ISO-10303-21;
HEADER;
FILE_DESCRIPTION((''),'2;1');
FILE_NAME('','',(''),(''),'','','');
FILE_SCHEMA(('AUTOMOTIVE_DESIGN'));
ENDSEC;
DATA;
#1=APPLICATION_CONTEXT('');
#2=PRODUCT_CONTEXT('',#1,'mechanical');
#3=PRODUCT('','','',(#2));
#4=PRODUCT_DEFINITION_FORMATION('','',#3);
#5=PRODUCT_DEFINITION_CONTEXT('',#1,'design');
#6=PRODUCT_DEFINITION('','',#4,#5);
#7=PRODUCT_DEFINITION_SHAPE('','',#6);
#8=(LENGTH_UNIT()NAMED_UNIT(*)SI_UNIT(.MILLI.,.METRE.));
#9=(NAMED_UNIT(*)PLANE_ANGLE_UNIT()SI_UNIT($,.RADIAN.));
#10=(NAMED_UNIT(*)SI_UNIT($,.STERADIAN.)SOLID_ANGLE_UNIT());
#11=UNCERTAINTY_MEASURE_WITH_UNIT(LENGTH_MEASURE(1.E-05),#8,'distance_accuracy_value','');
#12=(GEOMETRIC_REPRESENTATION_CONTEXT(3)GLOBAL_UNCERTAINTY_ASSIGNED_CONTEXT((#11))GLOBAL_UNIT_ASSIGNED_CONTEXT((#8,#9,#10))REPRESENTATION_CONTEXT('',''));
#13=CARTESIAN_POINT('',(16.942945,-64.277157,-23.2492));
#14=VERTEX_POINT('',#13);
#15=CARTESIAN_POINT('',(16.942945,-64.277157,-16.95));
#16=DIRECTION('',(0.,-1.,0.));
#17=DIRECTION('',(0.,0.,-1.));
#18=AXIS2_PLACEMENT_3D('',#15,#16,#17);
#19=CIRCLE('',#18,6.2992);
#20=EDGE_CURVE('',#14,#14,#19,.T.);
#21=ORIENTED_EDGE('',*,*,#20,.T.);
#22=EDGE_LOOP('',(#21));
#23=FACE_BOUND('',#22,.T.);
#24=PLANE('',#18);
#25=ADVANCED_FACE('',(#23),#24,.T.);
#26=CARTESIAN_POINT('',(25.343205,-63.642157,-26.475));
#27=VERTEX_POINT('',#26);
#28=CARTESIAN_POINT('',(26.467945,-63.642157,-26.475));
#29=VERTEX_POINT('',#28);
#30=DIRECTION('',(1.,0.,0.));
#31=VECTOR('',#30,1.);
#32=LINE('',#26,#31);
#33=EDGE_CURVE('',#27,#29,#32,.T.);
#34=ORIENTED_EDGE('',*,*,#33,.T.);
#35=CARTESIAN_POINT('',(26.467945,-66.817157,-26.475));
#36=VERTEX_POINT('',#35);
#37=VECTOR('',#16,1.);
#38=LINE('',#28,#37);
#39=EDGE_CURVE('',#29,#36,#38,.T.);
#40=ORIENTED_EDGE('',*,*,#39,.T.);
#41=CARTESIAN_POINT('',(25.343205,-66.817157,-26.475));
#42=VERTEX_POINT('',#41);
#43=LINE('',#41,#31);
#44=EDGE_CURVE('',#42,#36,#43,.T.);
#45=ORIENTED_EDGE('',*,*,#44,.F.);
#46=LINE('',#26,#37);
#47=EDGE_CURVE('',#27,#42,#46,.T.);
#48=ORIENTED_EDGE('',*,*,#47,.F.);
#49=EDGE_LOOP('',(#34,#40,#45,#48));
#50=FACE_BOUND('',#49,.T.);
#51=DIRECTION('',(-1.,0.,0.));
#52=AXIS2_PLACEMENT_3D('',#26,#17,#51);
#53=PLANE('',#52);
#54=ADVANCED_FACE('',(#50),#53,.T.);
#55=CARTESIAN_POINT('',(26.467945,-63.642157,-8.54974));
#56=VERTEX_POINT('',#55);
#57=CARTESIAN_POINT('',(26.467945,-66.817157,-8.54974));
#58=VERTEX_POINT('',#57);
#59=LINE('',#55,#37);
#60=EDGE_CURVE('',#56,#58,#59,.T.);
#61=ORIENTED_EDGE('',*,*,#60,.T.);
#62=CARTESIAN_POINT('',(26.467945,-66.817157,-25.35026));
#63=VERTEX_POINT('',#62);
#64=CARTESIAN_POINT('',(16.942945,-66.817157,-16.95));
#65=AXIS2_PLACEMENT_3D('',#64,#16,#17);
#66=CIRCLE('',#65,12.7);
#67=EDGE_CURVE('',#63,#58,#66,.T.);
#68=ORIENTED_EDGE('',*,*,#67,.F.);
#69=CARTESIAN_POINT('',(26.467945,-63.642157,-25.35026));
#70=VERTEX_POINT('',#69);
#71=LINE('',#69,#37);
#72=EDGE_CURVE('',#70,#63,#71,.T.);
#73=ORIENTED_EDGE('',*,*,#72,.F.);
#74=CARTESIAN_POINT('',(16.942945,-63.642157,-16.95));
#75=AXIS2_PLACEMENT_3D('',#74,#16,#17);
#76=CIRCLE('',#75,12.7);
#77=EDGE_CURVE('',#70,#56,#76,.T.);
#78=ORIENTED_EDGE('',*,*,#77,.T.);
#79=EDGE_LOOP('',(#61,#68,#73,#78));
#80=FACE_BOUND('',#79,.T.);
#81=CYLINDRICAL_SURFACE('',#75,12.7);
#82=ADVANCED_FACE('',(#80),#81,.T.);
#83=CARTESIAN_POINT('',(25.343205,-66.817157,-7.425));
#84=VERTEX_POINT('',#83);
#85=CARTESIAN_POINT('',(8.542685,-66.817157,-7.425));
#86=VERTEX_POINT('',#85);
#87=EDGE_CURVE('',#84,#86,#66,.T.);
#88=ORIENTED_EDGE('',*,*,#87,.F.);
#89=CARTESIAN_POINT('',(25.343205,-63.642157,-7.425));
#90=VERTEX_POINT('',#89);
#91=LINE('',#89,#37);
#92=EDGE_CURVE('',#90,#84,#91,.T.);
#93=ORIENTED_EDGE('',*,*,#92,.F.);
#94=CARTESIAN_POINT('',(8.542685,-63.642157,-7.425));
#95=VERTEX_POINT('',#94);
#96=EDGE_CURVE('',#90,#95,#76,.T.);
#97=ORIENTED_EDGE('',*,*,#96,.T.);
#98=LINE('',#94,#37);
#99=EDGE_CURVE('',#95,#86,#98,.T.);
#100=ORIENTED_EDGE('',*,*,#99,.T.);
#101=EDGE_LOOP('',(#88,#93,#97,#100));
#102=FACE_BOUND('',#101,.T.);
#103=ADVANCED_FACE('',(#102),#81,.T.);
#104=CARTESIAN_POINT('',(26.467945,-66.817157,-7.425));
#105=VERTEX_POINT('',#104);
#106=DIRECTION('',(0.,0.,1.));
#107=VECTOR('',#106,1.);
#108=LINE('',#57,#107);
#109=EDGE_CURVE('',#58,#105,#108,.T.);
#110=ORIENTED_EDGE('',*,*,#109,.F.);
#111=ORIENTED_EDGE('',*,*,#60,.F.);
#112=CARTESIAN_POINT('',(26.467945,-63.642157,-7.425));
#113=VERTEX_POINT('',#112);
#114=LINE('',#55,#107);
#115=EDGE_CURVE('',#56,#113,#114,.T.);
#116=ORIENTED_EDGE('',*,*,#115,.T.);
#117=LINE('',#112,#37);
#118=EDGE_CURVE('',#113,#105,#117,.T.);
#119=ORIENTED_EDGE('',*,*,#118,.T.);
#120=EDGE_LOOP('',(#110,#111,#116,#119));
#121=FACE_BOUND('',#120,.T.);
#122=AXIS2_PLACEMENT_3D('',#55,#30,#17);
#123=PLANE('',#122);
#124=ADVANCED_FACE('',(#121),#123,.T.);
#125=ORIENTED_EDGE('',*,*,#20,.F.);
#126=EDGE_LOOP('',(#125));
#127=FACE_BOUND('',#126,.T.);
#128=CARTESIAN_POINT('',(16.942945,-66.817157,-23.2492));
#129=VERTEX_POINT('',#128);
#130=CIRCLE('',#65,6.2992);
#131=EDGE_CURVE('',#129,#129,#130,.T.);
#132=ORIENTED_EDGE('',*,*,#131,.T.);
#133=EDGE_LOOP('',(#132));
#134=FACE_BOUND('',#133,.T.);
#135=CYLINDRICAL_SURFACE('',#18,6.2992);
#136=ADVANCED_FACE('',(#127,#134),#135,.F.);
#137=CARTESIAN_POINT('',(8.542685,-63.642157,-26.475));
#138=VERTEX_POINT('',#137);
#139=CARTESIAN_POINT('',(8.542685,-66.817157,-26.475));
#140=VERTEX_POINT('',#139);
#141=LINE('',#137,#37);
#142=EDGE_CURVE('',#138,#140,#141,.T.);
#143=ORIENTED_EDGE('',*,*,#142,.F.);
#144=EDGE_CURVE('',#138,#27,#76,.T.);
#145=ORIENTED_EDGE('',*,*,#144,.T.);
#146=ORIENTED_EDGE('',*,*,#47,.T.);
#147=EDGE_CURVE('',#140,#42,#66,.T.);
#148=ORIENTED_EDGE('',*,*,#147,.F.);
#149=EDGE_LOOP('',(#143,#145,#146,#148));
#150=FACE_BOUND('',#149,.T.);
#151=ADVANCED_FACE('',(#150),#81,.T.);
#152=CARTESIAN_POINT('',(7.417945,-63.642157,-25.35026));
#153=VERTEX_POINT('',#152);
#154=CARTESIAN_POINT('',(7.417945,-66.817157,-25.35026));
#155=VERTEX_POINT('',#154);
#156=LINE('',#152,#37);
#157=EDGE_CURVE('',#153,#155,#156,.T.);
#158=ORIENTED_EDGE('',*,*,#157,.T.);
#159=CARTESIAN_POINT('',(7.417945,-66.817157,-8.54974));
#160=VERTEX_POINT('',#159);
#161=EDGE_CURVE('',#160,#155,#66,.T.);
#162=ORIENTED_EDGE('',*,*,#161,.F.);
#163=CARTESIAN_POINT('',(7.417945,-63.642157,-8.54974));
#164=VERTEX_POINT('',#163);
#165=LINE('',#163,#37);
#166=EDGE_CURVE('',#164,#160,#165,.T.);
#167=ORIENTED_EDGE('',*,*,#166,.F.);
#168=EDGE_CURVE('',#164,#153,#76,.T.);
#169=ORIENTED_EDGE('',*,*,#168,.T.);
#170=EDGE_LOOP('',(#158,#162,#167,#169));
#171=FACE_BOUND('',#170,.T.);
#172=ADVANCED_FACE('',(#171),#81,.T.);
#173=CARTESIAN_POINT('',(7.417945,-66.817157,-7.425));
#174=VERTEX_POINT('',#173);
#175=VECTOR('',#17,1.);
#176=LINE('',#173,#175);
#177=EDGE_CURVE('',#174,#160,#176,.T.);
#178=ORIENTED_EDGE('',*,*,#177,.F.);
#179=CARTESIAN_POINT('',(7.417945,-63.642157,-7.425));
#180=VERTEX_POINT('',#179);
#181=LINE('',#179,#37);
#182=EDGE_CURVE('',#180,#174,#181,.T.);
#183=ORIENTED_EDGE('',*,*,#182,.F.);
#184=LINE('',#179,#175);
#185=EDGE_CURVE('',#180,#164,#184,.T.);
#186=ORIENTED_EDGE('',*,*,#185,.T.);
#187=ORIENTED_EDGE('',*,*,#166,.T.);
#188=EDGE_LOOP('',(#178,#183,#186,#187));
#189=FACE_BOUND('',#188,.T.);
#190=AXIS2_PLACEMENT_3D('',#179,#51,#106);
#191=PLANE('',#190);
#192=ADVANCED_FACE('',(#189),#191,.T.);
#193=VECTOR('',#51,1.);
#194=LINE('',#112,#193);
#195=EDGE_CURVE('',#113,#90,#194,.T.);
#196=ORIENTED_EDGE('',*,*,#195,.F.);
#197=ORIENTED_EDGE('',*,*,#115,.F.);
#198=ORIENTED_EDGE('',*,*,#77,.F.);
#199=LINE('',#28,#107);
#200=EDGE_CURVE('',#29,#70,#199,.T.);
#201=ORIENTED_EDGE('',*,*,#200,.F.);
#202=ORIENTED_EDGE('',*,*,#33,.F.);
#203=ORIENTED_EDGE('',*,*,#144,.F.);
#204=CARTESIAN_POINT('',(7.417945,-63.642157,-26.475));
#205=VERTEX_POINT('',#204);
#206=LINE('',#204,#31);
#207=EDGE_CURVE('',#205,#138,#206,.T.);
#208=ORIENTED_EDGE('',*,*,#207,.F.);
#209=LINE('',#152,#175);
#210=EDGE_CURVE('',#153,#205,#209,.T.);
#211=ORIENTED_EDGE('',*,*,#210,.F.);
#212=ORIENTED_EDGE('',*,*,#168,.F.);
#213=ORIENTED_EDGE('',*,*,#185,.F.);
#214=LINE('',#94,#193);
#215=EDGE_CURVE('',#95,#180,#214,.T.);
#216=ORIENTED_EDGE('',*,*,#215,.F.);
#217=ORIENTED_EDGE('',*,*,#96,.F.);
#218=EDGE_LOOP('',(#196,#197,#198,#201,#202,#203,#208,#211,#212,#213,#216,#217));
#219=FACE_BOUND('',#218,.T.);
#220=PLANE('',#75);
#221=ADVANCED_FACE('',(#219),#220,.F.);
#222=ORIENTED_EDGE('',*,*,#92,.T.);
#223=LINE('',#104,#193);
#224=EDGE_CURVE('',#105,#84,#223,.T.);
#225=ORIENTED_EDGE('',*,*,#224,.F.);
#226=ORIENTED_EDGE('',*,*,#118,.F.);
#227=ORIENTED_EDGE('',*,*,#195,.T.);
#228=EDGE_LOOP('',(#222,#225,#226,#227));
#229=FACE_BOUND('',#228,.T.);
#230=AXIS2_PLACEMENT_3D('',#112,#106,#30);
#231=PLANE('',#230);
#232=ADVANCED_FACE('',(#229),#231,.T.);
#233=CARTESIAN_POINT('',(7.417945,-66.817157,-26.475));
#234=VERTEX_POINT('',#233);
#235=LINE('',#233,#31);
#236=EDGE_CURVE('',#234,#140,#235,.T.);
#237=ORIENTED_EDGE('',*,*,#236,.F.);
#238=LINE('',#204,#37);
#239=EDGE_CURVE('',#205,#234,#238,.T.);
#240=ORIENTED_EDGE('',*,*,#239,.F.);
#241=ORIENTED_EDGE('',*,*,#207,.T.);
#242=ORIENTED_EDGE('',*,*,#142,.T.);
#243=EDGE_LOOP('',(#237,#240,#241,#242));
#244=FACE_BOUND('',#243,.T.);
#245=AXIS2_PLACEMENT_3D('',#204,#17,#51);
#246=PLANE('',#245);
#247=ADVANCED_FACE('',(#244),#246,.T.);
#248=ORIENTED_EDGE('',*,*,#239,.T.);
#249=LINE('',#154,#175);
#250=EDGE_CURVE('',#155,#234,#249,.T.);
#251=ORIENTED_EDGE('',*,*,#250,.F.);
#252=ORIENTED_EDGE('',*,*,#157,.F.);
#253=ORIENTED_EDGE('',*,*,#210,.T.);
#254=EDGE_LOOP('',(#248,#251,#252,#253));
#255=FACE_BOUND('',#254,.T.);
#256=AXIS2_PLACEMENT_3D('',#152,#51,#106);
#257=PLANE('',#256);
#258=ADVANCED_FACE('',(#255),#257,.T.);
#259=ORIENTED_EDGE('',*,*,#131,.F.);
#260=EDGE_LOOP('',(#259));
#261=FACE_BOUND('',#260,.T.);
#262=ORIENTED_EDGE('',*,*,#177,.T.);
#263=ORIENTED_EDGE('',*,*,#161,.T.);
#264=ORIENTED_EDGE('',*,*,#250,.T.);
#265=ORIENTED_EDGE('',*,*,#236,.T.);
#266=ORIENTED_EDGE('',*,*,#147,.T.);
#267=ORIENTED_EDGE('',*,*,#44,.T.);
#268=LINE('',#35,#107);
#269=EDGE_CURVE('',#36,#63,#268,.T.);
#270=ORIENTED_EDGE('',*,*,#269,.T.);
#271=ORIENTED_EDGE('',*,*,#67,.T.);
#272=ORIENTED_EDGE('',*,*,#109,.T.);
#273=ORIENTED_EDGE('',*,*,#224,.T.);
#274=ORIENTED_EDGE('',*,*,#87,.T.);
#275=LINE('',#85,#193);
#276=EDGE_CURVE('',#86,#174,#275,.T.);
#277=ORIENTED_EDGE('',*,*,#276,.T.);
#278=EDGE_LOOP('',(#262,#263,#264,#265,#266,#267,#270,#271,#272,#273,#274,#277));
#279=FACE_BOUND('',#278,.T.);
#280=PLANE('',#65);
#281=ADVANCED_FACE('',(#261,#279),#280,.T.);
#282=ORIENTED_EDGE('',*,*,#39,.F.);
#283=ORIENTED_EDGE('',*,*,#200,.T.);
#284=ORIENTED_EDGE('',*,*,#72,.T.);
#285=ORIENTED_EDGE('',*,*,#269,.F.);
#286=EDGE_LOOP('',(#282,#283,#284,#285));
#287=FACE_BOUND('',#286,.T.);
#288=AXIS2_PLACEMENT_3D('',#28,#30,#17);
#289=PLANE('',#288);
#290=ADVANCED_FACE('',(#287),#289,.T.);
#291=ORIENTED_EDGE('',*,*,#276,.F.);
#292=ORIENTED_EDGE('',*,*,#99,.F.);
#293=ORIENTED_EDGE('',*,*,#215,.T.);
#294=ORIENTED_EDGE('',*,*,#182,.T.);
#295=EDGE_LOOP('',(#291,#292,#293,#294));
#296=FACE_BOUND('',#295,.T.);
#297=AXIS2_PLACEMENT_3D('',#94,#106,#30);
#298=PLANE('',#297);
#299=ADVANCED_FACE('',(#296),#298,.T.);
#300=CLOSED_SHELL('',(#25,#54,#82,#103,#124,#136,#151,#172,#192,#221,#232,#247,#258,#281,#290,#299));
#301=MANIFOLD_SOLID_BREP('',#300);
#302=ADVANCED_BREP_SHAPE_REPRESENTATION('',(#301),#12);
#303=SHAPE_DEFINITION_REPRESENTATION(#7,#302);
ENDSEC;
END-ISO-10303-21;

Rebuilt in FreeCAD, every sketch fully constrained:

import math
import FreeCAD as App
import Part
import Sketcher
from FreeCAD import Vector
Q = App.Units.Quantity

doc = App.newDocument("Part")
body = doc.addObject("PartDesign::Body", "Body")

# Sketch on XZ plane
sketch1 = doc.addObject("Sketcher::SketchObject", "Sketch")
body.addObject(sketch1)
sketch1.AttachmentSupport = (doc.XZ_Plane, [""])
sketch1.MapMode = "FlatFace"
sketch1.AttachmentOffset = App.Placement(Vector(0, 0, 66.817157), App.Rotation())
sketch1.addGeometry([
    Part.LineSegment(Vector(26.5, -26.5, 0), Vector(26.5, -25.4, 0)),  # 0
    Part.ArcOfCircle(Part.Circle(Vector(16.9, -16.9, 0), Vector(0, 0, 1), 12.7), math.radians(-41), math.radians(41)),  # 1
    Part.LineSegment(Vector(26.5, -8.5, 0), Vector(26.5, -7.4, 0)),  # 2
    Part.LineSegment(Vector(26.5, -7.4, 0), Vector(25.3, -7.4, 0)),  # 3
    Part.ArcOfCircle(Part.Circle(Vector(16.9, -17, 0), Vector(0, 0, 1), 12.7), math.radians(49), math.radians(131)),  # 4
    Part.LineSegment(Vector(8.5, -7.4, 0), Vector(7.4, -7.4, 0)),  # 5
    Part.LineSegment(Vector(7.4, -7.4, 0), Vector(7.4, -8.5, 0)),  # 6
    Part.ArcOfCircle(Part.Circle(Vector(16.9, -16.9, 0), Vector(0, 0, 1), 12.7), math.radians(139), math.radians(221)),  # 7
    Part.LineSegment(Vector(7.4, -25.4, 0), Vector(7.4, -26.5, 0)),  # 8
    Part.LineSegment(Vector(7.4, -26.5, 0), Vector(8.5, -26.5, 0)),  # 9
    Part.ArcOfCircle(Part.Circle(Vector(16.9, -16.9, 0), Vector(0, 0, 1), 12.7), math.radians(-131), math.radians(-49)),  # 10
    Part.LineSegment(Vector(25.3, -26.5, 0), Vector(26.5, -26.5, 0)),  # 11
], False)
sketch1.addConstraint([
    Sketcher.Constraint("Coincident", 0, 2, 1, 1),
    Sketcher.Constraint("Coincident", 1, 2, 2, 1),
    Sketcher.Constraint("Coincident", 2, 2, 3, 1),
    Sketcher.Constraint("Coincident", 3, 2, 4, 1),
    Sketcher.Constraint("Coincident", 4, 2, 5, 1),
    Sketcher.Constraint("Coincident", 5, 2, 6, 1),
    Sketcher.Constraint("Coincident", 6, 2, 7, 1),
    Sketcher.Constraint("Coincident", 7, 2, 8, 1),
    Sketcher.Constraint("Coincident", 8, 2, 9, 1),
    Sketcher.Constraint("Coincident", 9, 2, 10, 1),
    Sketcher.Constraint("Coincident", 10, 2, 11, 1),
    Sketcher.Constraint("Coincident", 11, 2, 0, 1),
    Sketcher.Constraint("Vertical", 0),
    Sketcher.Constraint("Vertical", 2),
    Sketcher.Constraint("Horizontal", 3),
    Sketcher.Constraint("Horizontal", 5),
    Sketcher.Constraint("Vertical", 6),
    Sketcher.Constraint("Vertical", 8),
    Sketcher.Constraint("Horizontal", 9),
    Sketcher.Constraint("Horizontal", 11),
    Sketcher.Constraint("Coincident", 4, 3, 1, 3),
    Sketcher.Constraint("Coincident", 7, 3, 1, 3),
    Sketcher.Constraint("Coincident", 10, 3, 1, 3),
    Sketcher.Constraint("Equal", 1, 4),
    Sketcher.Constraint("Equal", 4, 7),
    Sketcher.Constraint("Equal", 7, 10),
    Sketcher.Constraint("Horizontal", 3, 2, 4, 2),
    Sketcher.Constraint("Horizontal", 1, 2, 6, 2),
    Sketcher.Constraint("Horizontal", 0, 2, 7, 2),
    Sketcher.Constraint("Horizontal", 9, 2, 10, 2),
    Sketcher.Constraint("Vertical", 0, 2, 1, 2),
    Sketcher.Constraint("Vertical", 4, 2, 9, 2),
    Sketcher.Constraint("Equal", 11, 0),
    Sketcher.Constraint("Radius", 1, Q("0.5 in")),
    Sketcher.Constraint("DistanceX", 7, 3, 0, 2, Q("0.375 in")),
    Sketcher.Constraint("DistanceY", 1, 3, -1, 1, 16.95),
    Sketcher.Constraint("DistanceX", -1, 1, 1, 3, 16.942945),
])
pad1 = doc.addObject("PartDesign::Pad", "Pad")
body.addObject(pad1)
pad1.Profile = sketch1
pad1.Length = Q("0.125 in")
pad1.Reversed = True

# Sketch on XZ plane
sketch2 = doc.addObject("Sketcher::SketchObject", "Sketch001")
body.addObject(sketch2)
sketch2.AttachmentSupport = (doc.XZ_Plane, [""])
sketch2.MapMode = "FlatFace"
sketch2.AttachmentOffset = App.Placement(Vector(0, 0, 66.817157), App.Rotation())
sketch2.addGeometry(Part.Circle(Vector(17, -17, 0), Vector(0, 0, 1), 6), False)
sketch2.addConstraint([
    Sketcher.Constraint("Diameter", 0, Q("0.496 in")),
    Sketcher.Constraint("DistanceY", 0, 3, -1, 1, 16.95),
    Sketcher.Constraint("DistanceX", -1, 1, 0, 3, 16.942945),
])
pocket1 = doc.addObject("PartDesign::Pocket", "Pocket")
body.addObject(pocket1)
pocket1.Profile = sketch2
pocket1.Length = Q("0.1 in")

doc.recompute()
